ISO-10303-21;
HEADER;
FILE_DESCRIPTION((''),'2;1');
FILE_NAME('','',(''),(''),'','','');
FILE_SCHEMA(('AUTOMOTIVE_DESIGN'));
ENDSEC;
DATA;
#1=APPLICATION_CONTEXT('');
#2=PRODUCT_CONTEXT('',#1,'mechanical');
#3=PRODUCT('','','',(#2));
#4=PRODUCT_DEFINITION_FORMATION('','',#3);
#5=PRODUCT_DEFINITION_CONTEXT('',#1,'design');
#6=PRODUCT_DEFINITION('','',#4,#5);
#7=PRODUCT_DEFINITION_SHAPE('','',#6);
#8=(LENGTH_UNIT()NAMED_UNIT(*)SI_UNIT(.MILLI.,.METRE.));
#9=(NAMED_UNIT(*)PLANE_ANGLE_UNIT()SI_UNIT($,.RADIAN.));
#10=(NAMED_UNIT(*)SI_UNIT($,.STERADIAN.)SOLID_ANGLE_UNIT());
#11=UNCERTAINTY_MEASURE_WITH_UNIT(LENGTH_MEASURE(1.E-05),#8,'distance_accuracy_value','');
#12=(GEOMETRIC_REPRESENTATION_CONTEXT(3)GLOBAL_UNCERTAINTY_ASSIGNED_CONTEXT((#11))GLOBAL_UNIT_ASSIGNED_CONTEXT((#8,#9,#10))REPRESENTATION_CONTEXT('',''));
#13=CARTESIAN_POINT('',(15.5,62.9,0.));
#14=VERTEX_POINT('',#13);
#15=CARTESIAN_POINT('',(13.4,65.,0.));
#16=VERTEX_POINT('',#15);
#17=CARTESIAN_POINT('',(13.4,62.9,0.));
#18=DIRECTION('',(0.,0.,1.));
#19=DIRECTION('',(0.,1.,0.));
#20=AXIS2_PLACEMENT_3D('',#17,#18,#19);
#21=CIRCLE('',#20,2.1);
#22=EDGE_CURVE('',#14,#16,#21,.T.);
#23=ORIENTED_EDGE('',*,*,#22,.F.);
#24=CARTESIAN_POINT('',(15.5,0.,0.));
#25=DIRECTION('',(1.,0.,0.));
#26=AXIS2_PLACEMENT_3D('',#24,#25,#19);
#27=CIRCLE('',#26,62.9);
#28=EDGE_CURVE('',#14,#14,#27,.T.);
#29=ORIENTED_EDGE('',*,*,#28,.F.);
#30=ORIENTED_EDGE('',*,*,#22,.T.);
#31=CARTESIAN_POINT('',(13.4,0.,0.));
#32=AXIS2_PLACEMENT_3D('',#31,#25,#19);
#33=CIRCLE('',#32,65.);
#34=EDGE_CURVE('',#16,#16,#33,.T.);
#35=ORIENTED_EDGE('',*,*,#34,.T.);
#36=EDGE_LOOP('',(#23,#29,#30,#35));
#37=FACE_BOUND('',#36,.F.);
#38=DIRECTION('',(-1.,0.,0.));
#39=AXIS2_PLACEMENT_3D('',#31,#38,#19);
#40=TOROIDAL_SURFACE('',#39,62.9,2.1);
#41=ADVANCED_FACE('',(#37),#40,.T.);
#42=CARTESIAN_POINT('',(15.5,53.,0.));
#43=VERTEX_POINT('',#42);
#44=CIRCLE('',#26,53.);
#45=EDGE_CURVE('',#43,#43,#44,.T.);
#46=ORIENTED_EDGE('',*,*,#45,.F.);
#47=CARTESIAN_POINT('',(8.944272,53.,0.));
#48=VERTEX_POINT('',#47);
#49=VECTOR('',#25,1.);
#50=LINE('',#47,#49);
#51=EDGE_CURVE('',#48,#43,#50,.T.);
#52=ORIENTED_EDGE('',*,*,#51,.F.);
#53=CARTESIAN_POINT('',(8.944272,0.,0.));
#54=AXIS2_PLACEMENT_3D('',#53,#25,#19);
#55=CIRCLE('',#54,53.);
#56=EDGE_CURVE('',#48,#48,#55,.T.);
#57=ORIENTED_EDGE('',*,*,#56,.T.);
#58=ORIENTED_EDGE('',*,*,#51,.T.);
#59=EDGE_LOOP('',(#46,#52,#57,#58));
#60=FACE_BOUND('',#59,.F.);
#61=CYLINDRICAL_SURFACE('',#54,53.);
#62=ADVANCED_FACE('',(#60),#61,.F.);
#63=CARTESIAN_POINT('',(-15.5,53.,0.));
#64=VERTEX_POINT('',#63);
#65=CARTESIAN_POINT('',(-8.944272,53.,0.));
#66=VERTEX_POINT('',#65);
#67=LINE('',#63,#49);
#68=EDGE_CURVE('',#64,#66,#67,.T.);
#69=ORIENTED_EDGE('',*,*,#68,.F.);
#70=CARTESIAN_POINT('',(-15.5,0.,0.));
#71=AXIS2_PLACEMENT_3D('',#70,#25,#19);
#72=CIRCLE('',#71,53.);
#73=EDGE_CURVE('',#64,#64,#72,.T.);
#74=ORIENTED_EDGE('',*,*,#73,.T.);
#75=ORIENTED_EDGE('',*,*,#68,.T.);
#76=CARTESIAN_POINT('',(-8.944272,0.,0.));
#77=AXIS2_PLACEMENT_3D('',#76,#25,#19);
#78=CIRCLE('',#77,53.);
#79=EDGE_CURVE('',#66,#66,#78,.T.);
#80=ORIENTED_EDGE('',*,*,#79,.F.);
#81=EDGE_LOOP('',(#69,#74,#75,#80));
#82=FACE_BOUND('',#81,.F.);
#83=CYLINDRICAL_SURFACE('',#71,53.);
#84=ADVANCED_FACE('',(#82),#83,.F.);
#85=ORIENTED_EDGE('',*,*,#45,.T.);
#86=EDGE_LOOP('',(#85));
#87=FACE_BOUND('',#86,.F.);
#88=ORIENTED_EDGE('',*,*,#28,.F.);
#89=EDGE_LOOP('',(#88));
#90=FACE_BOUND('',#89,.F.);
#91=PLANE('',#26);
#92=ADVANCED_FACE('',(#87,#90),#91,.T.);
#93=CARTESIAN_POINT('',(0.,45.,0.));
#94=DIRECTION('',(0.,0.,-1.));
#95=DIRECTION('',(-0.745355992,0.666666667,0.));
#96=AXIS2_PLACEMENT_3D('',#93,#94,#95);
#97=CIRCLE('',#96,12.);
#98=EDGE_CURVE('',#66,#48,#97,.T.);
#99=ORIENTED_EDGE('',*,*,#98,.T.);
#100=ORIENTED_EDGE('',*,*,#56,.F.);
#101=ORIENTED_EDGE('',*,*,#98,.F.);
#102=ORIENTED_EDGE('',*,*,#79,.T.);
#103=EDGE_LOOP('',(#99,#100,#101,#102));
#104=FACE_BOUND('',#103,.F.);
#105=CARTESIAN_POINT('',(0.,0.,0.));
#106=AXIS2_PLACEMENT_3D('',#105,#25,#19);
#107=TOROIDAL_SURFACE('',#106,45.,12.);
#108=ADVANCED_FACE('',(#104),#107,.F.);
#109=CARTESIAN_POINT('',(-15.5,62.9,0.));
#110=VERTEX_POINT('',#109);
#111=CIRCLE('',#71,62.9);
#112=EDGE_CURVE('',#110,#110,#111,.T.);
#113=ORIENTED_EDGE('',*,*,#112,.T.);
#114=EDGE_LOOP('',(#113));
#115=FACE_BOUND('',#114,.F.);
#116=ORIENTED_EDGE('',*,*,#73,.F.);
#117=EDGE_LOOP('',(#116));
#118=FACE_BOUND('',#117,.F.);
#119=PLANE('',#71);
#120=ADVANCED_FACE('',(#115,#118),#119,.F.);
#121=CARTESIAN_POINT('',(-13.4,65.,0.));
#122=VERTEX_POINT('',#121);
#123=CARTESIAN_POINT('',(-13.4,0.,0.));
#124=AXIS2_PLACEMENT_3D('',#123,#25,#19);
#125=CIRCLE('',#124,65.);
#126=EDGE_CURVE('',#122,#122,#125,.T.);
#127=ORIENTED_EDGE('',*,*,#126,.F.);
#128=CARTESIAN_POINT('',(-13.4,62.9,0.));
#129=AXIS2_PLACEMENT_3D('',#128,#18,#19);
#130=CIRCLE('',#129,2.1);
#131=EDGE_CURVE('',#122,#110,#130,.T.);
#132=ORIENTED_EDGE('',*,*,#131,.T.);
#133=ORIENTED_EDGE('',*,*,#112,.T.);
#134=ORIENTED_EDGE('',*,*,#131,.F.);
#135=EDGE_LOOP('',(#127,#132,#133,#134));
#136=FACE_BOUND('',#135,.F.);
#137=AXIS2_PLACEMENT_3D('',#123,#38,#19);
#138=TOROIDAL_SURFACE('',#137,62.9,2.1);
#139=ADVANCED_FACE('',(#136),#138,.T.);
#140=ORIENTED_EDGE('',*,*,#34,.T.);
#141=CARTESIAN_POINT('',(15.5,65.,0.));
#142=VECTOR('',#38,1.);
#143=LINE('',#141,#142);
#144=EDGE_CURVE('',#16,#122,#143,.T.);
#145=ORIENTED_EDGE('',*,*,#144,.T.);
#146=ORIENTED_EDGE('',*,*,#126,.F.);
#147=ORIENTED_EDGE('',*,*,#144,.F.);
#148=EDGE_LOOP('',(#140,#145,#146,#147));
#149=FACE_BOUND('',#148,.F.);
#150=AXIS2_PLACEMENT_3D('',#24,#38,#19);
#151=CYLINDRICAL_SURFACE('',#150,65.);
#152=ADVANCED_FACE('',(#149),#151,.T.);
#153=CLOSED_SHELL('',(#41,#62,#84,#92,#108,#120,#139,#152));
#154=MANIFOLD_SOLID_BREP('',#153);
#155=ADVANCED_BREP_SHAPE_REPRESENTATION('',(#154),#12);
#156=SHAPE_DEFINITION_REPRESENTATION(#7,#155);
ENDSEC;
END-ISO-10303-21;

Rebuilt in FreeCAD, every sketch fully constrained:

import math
import FreeCAD as App
import Part
import Sketcher
Q = App.Units.Quantity


def edges_at(feature, points):
    """Names of the edges that pass closest to the given points."""
    edges = feature.Shape.Edges
    near = lambda p: min(range(len(edges)), key=lambda i: edges[i].distToShape(Part.Vertex(*p))[0])
    return sorted({f"Edge{near(p) + 1}" for p in points})

doc = App.newDocument("Part")
body = doc.addObject("PartDesign::Body", "Body")

sketch1 = doc.addObject("Sketcher::SketchObject", "Sketch")
body.addObject(sketch1)
sketch1.AttachmentSupport = (doc.XY_Plane, [""])
sketch1.MapMode = "FlatFace"
sketch1.addGeometry([
    Part.LineSegment(App.Vector(-16, 53, 0), App.Vector(-9, 53, 0)),
    Part.ArcOfCircle(Part.Circle(App.Vector(0, 45, 0), App.Vector(0, 0, 1), 12), math.radians(42), math.radians(138)),
    Part.LineSegment(App.Vector(9, 53, 0), App.Vector(16, 53, 0)),
    Part.LineSegment(App.Vector(16, 53, 0), App.Vector(16, 65, 0)),
    Part.LineSegment(App.Vector(16, 65, 0), App.Vector(-16, 65, 0)),
    Part.LineSegment(App.Vector(-16, 65, 0), App.Vector(-16, 53, 0)),
], False)
sketch1.addConstraint([
    Sketcher.Constraint("Coincident", 0, 2, 1, 2),
    Sketcher.Constraint("Coincident", 1, 1, 2, 1),
    Sketcher.Constraint("Coincident", 2, 2, 3, 1),
    Sketcher.Constraint("Coincident", 3, 2, 4, 1),
    Sketcher.Constraint("Coincident", 4, 2, 5, 1),
    Sketcher.Constraint("Coincident", 5, 2, 0, 1),
    Sketcher.Constraint("Horizontal", 0),
    Sketcher.Constraint("Horizontal", 2),
    Sketcher.Constraint("Vertical", 3),
    Sketcher.Constraint("Horizontal", 4),
    Sketcher.Constraint("Vertical", 5),
    Sketcher.Constraint("Symmetric", 0, 2, 1, 1, -2),
    Sketcher.Constraint("Equal", 0, 2),
    Sketcher.Constraint("Radius", 1, Q("12 mm")),
    Sketcher.Constraint("DistanceX", 4, 2, 4, 1, Q("31 mm")),
    Sketcher.Constraint("DistanceY", 3, 1, 3, 2, Q("12 mm")),
    Sketcher.Constraint("DistanceY", -1, 1, 1, 3, Q("45 mm")),
    Sketcher.Constraint("DistanceY", -1, 1, 0, 2, Q("53 mm")),
])
revolution = doc.addObject("PartDesign::Revolution", "Revolution")
body.addObject(revolution)
revolution.Profile = sketch1
revolution.ReferenceAxis = (sketch1, ["H_Axis"])
revolution.Angle = 360
doc.recompute()

fillet = doc.addObject("PartDesign::Fillet", "Fillet")
body.addObject(fillet)
fillet.Base = (revolution, edges_at(revolution, [(15.5, -65, 0), (-15.5, -65, 0)]))
fillet.Radius = 2.1

doc.recompute()
